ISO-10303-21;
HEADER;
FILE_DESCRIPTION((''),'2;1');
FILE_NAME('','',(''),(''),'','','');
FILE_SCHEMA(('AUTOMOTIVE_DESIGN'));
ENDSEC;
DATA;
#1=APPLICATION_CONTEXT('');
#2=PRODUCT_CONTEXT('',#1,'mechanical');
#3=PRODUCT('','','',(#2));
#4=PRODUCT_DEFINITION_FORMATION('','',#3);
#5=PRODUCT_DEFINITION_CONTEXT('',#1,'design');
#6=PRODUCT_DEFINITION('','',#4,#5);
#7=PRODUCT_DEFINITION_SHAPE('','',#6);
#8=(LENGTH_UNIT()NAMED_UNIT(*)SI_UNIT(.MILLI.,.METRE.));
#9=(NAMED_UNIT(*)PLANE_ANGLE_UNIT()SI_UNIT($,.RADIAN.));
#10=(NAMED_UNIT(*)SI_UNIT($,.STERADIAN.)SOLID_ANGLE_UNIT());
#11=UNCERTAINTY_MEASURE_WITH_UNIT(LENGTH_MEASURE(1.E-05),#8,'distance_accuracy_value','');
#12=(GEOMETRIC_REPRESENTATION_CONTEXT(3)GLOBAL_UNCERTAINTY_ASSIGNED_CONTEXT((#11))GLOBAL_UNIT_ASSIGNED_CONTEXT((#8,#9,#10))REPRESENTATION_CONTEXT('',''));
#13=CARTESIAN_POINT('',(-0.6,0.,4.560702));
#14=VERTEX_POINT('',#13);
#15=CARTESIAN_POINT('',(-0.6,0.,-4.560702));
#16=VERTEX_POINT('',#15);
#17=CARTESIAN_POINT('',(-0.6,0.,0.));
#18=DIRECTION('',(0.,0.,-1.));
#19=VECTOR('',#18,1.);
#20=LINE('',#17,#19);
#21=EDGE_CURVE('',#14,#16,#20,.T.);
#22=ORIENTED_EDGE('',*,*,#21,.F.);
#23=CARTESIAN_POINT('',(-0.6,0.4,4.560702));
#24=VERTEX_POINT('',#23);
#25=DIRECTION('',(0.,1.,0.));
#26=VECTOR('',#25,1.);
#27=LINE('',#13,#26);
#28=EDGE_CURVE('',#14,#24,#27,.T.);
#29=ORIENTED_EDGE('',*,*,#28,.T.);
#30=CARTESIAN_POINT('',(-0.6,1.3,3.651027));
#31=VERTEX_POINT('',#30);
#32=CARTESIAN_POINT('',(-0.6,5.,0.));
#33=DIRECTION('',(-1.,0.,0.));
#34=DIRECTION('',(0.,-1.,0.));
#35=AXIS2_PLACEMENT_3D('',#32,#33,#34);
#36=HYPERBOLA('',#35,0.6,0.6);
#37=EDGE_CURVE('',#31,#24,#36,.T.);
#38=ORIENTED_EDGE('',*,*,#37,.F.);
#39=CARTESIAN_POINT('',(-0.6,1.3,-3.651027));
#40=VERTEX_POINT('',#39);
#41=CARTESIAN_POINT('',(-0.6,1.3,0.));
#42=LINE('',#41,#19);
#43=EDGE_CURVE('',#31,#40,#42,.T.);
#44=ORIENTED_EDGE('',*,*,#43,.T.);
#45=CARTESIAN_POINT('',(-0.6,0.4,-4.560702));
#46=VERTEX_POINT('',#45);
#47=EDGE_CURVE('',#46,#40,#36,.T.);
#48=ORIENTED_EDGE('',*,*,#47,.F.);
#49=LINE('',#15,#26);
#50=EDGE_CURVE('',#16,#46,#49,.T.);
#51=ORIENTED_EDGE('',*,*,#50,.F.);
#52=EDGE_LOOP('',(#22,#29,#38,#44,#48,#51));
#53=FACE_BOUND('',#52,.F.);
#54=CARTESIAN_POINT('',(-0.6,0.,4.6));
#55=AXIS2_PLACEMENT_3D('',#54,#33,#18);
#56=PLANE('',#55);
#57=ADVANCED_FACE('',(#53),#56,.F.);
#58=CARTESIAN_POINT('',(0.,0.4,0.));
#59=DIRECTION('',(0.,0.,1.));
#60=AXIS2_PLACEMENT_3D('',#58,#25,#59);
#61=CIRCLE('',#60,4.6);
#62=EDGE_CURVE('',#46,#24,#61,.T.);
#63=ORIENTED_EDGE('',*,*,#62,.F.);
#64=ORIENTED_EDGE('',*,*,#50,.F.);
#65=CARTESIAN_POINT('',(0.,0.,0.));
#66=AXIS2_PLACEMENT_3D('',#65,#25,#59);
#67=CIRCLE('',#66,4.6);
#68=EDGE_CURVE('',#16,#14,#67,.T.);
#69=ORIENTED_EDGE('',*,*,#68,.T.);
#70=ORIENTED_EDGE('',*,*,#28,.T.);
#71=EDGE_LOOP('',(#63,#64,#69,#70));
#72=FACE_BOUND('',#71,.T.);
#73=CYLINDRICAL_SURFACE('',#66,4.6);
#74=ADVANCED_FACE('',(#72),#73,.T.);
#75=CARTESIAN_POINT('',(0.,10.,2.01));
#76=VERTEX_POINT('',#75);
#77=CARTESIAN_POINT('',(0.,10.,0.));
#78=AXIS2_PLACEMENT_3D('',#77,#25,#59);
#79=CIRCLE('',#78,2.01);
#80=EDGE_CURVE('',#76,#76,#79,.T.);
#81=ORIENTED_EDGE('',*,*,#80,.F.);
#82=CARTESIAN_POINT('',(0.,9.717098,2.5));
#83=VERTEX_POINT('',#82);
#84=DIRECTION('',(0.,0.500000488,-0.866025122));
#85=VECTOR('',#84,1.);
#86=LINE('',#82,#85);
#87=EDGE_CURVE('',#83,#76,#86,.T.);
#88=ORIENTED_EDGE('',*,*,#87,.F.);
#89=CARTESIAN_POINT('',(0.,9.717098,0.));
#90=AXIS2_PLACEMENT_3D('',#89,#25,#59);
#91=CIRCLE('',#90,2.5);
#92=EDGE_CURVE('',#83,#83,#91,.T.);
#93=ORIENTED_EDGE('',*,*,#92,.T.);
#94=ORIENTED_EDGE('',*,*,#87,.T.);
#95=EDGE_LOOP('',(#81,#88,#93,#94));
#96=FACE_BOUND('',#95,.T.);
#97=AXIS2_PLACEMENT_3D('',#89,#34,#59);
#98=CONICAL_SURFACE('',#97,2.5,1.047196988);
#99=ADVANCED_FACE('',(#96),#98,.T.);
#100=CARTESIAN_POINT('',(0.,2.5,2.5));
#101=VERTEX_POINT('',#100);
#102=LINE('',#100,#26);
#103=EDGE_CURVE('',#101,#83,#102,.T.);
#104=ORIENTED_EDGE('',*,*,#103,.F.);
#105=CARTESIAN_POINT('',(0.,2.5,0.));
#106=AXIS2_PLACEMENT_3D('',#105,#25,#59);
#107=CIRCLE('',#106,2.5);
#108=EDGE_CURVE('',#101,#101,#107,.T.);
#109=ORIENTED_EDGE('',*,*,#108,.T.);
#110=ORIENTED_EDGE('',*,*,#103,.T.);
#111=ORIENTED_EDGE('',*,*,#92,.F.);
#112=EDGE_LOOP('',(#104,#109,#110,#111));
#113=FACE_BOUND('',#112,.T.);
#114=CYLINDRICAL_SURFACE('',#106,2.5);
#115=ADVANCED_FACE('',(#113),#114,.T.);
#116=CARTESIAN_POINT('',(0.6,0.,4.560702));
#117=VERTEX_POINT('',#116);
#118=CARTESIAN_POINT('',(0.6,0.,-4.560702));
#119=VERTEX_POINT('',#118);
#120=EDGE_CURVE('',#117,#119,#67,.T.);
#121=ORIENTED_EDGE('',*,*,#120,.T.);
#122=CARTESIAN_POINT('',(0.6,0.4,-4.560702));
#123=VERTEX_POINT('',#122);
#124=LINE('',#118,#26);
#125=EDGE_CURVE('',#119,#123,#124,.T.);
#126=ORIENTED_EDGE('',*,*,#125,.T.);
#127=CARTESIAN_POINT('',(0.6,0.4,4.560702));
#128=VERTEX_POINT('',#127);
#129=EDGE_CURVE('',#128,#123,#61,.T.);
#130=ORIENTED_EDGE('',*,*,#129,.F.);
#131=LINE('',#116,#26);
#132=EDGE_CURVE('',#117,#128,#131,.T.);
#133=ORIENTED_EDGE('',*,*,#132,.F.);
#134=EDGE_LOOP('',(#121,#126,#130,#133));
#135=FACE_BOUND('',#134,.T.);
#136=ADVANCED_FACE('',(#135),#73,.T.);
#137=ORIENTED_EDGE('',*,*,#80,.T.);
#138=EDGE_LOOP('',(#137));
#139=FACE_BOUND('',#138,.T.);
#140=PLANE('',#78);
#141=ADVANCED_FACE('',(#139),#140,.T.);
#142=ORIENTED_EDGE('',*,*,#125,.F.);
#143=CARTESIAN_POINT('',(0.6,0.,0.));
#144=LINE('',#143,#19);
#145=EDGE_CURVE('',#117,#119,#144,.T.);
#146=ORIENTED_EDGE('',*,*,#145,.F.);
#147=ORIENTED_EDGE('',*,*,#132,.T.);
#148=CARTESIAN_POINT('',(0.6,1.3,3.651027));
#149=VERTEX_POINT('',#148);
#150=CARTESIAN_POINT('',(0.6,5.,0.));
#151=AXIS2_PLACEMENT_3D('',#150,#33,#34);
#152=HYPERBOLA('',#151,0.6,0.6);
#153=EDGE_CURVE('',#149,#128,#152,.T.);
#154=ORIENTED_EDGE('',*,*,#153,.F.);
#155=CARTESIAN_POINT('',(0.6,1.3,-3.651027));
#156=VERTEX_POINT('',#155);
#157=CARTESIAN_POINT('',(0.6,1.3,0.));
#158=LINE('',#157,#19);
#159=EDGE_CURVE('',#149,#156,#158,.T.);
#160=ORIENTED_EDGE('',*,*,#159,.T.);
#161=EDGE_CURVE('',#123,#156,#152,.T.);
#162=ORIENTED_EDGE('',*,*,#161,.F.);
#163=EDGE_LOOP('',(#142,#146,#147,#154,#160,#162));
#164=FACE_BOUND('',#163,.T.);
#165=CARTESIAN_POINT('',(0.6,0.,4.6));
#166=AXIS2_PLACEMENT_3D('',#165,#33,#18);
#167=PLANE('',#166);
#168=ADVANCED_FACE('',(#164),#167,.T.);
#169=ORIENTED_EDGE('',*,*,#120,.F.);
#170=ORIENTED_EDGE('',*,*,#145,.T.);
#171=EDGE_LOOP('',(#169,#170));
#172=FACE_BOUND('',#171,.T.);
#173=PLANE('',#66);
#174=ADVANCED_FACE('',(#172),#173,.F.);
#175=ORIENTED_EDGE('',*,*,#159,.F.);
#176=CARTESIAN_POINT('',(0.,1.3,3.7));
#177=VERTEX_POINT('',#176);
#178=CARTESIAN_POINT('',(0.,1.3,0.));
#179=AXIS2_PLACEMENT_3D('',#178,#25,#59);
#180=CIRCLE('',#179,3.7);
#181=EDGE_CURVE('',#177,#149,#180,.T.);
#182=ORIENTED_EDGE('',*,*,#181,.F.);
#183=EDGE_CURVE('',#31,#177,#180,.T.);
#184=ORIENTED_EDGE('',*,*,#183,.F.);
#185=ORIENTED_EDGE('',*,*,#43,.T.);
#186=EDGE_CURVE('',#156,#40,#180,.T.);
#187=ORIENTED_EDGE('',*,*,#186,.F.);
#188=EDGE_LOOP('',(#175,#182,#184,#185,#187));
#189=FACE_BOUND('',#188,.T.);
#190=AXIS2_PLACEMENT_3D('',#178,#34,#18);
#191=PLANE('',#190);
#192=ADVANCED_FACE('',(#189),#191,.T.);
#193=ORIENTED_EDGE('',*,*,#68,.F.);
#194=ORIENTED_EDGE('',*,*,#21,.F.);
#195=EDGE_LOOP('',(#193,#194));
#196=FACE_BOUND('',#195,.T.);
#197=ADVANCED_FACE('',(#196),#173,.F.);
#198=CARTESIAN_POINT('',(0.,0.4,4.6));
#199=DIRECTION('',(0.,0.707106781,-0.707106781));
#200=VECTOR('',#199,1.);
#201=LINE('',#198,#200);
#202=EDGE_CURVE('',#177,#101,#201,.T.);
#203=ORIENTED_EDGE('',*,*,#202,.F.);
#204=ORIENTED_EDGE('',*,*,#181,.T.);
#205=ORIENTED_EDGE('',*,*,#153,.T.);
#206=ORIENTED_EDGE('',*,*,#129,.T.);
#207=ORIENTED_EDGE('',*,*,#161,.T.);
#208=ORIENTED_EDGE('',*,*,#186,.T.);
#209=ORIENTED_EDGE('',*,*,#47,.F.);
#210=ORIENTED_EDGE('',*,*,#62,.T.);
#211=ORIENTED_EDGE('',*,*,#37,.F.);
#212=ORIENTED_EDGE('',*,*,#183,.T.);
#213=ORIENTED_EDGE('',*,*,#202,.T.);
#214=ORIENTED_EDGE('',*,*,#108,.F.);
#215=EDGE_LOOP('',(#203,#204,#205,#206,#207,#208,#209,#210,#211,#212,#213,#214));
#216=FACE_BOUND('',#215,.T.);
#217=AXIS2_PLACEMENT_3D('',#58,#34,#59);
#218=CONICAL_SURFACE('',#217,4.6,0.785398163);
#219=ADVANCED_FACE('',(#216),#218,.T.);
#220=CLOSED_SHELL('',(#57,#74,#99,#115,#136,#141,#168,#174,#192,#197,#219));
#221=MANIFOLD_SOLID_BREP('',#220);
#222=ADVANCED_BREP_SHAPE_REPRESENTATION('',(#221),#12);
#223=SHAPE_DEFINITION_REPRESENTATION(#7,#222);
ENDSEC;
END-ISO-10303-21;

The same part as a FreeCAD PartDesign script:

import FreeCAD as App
import Part
import Sketcher
Q = App.Units.Quantity


def add_polygon(sketch, points):
    """Adds a closed chain of lines whose ends are joined by coincident constraints."""
    first, n = sketch.GeometryCount, len(points)
    for a, b in zip(points, points[1:] + points[:1]):
        sketch.addGeometry(Part.LineSegment(App.Vector(*a, 0), App.Vector(*b, 0)), False)
    for i in range(n):
        sketch.addConstraint(Sketcher.Constraint("Coincident", first + i, 2, first + (i + 1) % n, 1))

doc = App.newDocument("Part")
body = doc.addObject("PartDesign::Body", "Body")

sketch1 = body.newObject("Sketcher::SketchObject", "Sketch")
sketch1.AttachmentSupport = (doc.getObject("YZ_Plane"), [""])
sketch1.MapMode = "FlatFace"
add_polygon(sketch1, [(0, 4.6), (0, 0), (10, 0), (10, 2.01), (9.717098, 2.5), (2.5, 2.5), (0.4, 4.6)])
sketch1.addConstraint([
    Sketcher.Constraint("Vertical", 0),
    Sketcher.Constraint("Horizontal", 1),
    Sketcher.Constraint("Vertical", 2),
    Sketcher.Constraint("Horizontal", 4),
    Sketcher.Constraint("Horizontal", 6),
    Sketcher.Constraint("Coincident", 0, 2, -1, 1),
    Sketcher.Constraint("DistanceX", 1, 1, 1, 2, 10.0),
    Sketcher.Constraint("Angle", 5, Q("135 deg")),
    Sketcher.Constraint("DistanceX", 6, 2, 6, 1, 0.4),
    Sketcher.Constraint("DistanceY", 0, 2, 0, 1, 4.6),
    Sketcher.Constraint("DistanceY", 2, 1, 2, 2, 2.01),
    Sketcher.Constraint("DistanceY", -1, 1, 3, 2, 2.5),
    Sketcher.Constraint("DistanceX", 4, 2, 4, 1, 7.217098),
])
revolution = body.newObject("PartDesign::Revolution", "Revolution")
revolution.Profile = sketch1
revolution.ReferenceAxis = (sketch1, ["H_Axis"])
revolution.Angle = 360

sketch2 = body.newObject("Sketcher::SketchObject", "Sketch001")
sketch2.AttachmentSupport = (doc.getObject("XZ_Plane"), [""])
sketch2.MapMode = "FlatFace"
add_polygon(sketch2, [(0.6, 4.6), (-0.6, 4.6), (-0.6, -4.6), (0.6, -4.6)])
sketch2.addConstraint([
    Sketcher.Constraint("Horizontal", 0),
    Sketcher.Constraint("Vertical", 1),
    Sketcher.Constraint("Horizontal", 2),
    Sketcher.Constraint("Vertical", 3),
    Sketcher.Constraint("Symmetric", 0, 2, 2, 2, -1, 1),
    Sketcher.Constraint("DistanceX", 0, 2, 0, 1, 1.2),
    Sketcher.Constraint("DistanceY", 1, 2, 1, 1, 9.2),
])
pocket1 = body.newObject("PartDesign::Pocket", "Pocket")
pocket1.Profile = sketch2
pocket1.Length = 1.3

doc.recompute()
